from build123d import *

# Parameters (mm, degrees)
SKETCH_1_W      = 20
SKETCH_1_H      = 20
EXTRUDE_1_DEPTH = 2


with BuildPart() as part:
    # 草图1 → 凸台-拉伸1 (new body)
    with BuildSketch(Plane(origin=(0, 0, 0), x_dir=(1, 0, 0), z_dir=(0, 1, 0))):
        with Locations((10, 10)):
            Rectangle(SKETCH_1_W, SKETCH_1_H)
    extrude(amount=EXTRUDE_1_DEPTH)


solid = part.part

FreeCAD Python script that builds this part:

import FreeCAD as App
import Part
import Sketcher
from FreeCAD import Vector

doc = App.newDocument("Part")
body = doc.addObject("PartDesign::Body", "Body")

sketch1 = doc.addObject("Sketcher::SketchObject", "Sketch")
body.addObject(sketch1)
sketch1.AttachmentSupport = (doc.XZ_Plane, [""])
sketch1.MapMode = "FlatFace"
sketch1.addGeometry([
    Part.LineSegment(Vector(0, -20, 0), Vector(0, 0, 0)),
    Part.LineSegment(Vector(0, 0, 0), Vector(20, 0, 0)),
    Part.LineSegment(Vector(20, 0, 0), Vector(20, -20, 0)),
    Part.LineSegment(Vector(20, -20, 0), Vector(0, -20, 0)),
], False)
sketch1.addConstraint([
    Sketcher.Constraint("Coincident", 0, 2, 1, 1),
    Sketcher.Constraint("Coincident", 1, 2, 2, 1),
    Sketcher.Constraint("Coincident", 2, 2, 3, 1),
    Sketcher.Constraint("Coincident", 3, 2, 0, 1),
    Sketcher.Constraint("Vertical", 0),
    Sketcher.Constraint("Horizontal", 1),
    Sketcher.Constraint("Vertical", 2),
    Sketcher.Constraint("Horizontal", 3),
    Sketcher.Constraint("Coincident", 0, 2, -1, 1),
    Sketcher.Constraint("Equal", 3, 0),
    Sketcher.Constraint("DistanceX", 1, 1, 1, 2, 20.0),
])
pad1 = doc.addObject("PartDesign::Pad", "Pad")
body.addObject(pad1)
pad1.Profile = sketch1
pad1.Length = 2
pad1.Reversed = True

doc.recompute()
